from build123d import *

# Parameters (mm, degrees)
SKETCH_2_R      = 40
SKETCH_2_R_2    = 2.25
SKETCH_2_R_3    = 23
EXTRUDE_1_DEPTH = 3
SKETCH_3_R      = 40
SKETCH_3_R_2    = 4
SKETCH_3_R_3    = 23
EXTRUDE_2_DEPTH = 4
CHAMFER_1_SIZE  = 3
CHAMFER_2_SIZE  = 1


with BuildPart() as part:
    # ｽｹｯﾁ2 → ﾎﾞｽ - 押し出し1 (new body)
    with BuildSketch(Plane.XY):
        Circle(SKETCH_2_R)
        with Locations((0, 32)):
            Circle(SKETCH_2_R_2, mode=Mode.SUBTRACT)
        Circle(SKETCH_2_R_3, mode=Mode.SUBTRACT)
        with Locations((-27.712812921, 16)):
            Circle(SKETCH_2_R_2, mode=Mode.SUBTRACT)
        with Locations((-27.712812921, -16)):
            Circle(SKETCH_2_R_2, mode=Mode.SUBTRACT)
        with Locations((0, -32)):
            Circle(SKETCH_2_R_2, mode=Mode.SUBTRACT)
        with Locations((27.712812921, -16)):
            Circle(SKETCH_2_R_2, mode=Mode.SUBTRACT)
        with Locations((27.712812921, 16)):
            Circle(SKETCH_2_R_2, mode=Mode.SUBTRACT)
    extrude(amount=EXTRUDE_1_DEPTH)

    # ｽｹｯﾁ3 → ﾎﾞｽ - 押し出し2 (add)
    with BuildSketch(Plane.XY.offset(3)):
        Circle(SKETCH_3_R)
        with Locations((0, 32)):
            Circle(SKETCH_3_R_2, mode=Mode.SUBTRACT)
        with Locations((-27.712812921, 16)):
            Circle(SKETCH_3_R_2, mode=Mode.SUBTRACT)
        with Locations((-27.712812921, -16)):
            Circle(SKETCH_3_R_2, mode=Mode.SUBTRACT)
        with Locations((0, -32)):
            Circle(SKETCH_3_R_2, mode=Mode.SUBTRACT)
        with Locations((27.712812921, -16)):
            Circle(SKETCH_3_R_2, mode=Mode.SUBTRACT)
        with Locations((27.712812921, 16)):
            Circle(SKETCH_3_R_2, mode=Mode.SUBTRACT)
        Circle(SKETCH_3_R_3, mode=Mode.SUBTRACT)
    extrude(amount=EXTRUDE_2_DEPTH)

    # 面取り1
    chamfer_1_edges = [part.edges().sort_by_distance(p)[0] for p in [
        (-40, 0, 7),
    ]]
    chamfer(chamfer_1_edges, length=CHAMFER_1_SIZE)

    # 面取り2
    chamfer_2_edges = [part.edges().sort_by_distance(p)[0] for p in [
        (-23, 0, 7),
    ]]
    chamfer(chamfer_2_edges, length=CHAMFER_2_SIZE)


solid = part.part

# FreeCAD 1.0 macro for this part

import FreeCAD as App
import Part
import Sketcher
from FreeCAD import Vector


def edges_at(feature, points):
    """Names of the edges that pass closest to the given points."""
    edges = feature.Shape.Edges
    near = lambda p: min(range(len(edges)), key=lambda i: edges[i].distToShape(Part.Vertex(*p))[0])
    return sorted({f"Edge{near(p) + 1}" for p in points})

doc = App.newDocument("Part")
body = doc.addObject("PartDesign::Body", "Body")

sketch1 = body.newObject("Sketcher::SketchObject", "Sketch")
sketch1.AttachmentSupport = (doc.getObject("XY_Plane"), [""])
sketch1.MapMode = "FlatFace"
sketch1.addGeometry(Part.Circle(Vector(0, 0, 0), Vector(0, 0, 1), 40), False)
sketch1.addGeometry(Part.Circle(Vector(-27.7, -16, 0), Vector(0, 0, 1), 2.2), False)
sketch1.addGeometry(Part.Circle(Vector(0, -32, 0), Vector(0, 0, 1), 2.2), False)
sketch1.addGeometry(Part.Circle(Vector(27.7, -16, 0), Vector(0, 0, 1), 2.2), False)
sketch1.addGeometry(Part.Circle(Vector(-27.7, 16, 0), Vector(0, 0, 1), 2.2), False)
sketch1.addGeometry(Part.Circle(Vector(0, 0, 0), Vector(0, 0, 1), 23), False)
sketch1.addGeometry(Part.Circle(Vector(27.7, 16, 0), Vector(0, 0, 1), 2.2), False)
sketch1.addGeometry(Part.Circle(Vector(0, 32, 0), Vector(0, 0, 1), 2.2), False)
sketch1.addConstraint(Sketcher.Constraint("Coincident", 0, 3, -1, 1))
sketch1.addConstraint(Sketcher.Constraint("Coincident", 5, 3, -1, 1))
sketch1.addConstraint(Sketcher.Constraint("Equal", 1, 2))
sketch1.addConstraint(Sketcher.Constraint("Equal", 2, 3))
sketch1.addConstraint(Sketcher.Constraint("Equal", 3, 4))
sketch1.addConstraint(Sketcher.Constraint("Equal", 4, 6))
sketch1.addConstraint(Sketcher.Constraint("Equal", 6, 7))
sketch1.addConstraint(Sketcher.Constraint("Symmetric", 3, 3, 4, 3, -1, 1))
sketch1.addConstraint(Sketcher.Constraint("Symmetric", 1, 3, 6, 3, -1, 1))
sketch1.addConstraint(Sketcher.Constraint("Symmetric", 2, 3, 7, 3, -1, 1))
sketch1.addConstraint(Sketcher.Constraint("Symmetric", 1, 3, 3, 3, -2))
sketch1.addConstraint(Sketcher.Constraint("PointOnObject", 2, 3, -2))
sketch1.addConstraint(Sketcher.Constraint("Diameter", 0, 80.0))
sketch1.addConstraint(Sketcher.Constraint("Diameter", 5, 46.0))
sketch1.addConstraint(Sketcher.Constraint("Diameter", 1, 4.5))
sketch1.addConstraint(Sketcher.Constraint("DistanceY", 1, 3, -1, 1, 16.0))
sketch1.addConstraint(Sketcher.Constraint("DistanceY", 2, 3, -1, 1, 32.0))
sketch1.addConstraint(Sketcher.Constraint("DistanceX", 1, 3, -1, 1, 27.712813))
pad1 = body.newObject("PartDesign::Pad", "Pad")
pad1.Profile = sketch1
pad1.Length = 3

sketch2 = body.newObject("Sketcher::SketchObject", "Sketch001")
sketch2.AttachmentSupport = (doc.getObject("XY_Plane"), [""])
sketch2.MapMode = "FlatFace"
sketch2.AttachmentOffset = App.Placement(Vector(0, 0, 3), App.Rotation())
sketch2.addGeometry(Part.Circle(Vector(0, 0, 0), Vector(0, 0, 1), 40), False)
sketch2.addGeometry(Part.Circle(Vector(-27.7, -16, 0), Vector(0, 0, 1), 4), False)
sketch2.addGeometry(Part.Circle(Vector(0, -32, 0), Vector(0, 0, 1), 4), False)
sketch2.addGeometry(Part.Circle(Vector(27.7, -16, 0), Vector(0, 0, 1), 4), False)
sketch2.addGeometry(Part.Circle(Vector(-27.7, 16, 0), Vector(0, 0, 1), 4), False)
sketch2.addGeometry(Part.Circle(Vector(0, 0, 0), Vector(0, 0, 1), 23), False)
sketch2.addGeometry(Part.Circle(Vector(27.7, 16, 0), Vector(0, 0, 1), 4), False)
sketch2.addGeometry(Part.Circle(Vector(0, 32, 0), Vector(0, 0, 1), 4), False)
sketch2.addConstraint(Sketcher.Constraint("Coincident", 0, 3, -1, 1))
sketch2.addConstraint(Sketcher.Constraint("Coincident", 5, 3, -1, 1))
sketch2.addConstraint(Sketcher.Constraint("Equal", 1, 2))
sketch2.addConstraint(Sketcher.Constraint("Equal", 2, 3))
sketch2.addConstraint(Sketcher.Constraint("Equal", 3, 4))
sketch2.addConstraint(Sketcher.Constraint("Equal", 4, 6))
sketch2.addConstraint(Sketcher.Constraint("Equal", 6, 7))
sketch2.addConstraint(Sketcher.Constraint("Symmetric", 3, 3, 4, 3, -1, 1))
sketch2.addConstraint(Sketcher.Constraint("Symmetric", 1, 3, 6, 3, -1, 1))
sketch2.addConstraint(Sketcher.Constraint("Symmetric", 2, 3, 7, 3, -1, 1))
sketch2.addConstraint(Sketcher.Constraint("Symmetric", 1, 3, 3, 3, -2))
sketch2.addConstraint(Sketcher.Constraint("PointOnObject", 2, 3, -2))
sketch2.addConstraint(Sketcher.Constraint("Diameter", 0, 80.0))
sketch2.addConstraint(Sketcher.Constraint("Diameter", 1, 8.0))
sketch2.addConstraint(Sketcher.Constraint("Diameter", 5, 46.0))
sketch2.addConstraint(Sketcher.Constraint("DistanceY", 1, 3, -1, 1, 16.0))
sketch2.addConstraint(Sketcher.Constraint("DistanceY", 2, 3, -1, 1, 32.0))
sketch2.addConstraint(Sketcher.Constraint("DistanceX", 1, 3, -1, 1, 27.712813))
pad2 = body.newObject("PartDesign::Pad", "Pad001")
pad2.Profile = sketch2
pad2.Length = 4
doc.recompute()

chamfer = body.newObject("PartDesign::Chamfer", "Chamfer")
chamfer.Base = (pad2, edges_at(pad2, [(-40, 0, 7)]))
chamfer.Size = 3
doc.recompute()

chamfer2 = body.newObject("PartDesign::Chamfer", "Chamfer001")
chamfer2.Base = (chamfer, edges_at(chamfer, [(-23, 0, 7)]))
chamfer2.Size = 1

doc.recompute()
